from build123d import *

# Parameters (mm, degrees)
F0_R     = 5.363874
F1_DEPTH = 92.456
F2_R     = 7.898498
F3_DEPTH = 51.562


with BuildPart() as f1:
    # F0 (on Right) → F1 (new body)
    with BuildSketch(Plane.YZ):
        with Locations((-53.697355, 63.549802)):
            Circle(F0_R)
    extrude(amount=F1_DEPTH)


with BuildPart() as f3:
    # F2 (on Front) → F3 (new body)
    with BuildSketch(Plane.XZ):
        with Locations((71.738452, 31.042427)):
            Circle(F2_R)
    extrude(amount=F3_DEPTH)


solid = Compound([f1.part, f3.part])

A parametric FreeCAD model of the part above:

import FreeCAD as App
import Part
import Sketcher
from FreeCAD import Vector
Q = App.Units.Quantity

doc = App.newDocument("Part")
params = doc.addObject("Spreadsheet::Sheet", "Params")
for row, (alias, value) in enumerate([
    ("pad1_length", "3.64 in"),
    ("pad2_length", "2.03 in"),
], start=1):
    params.set(f"A{row}", alias)
    params.set(f"B{row}", "=" + value)
    params.setAlias(f"B{row}", alias)

body = doc.addObject("PartDesign::Body", "Body")

# Sketch on YZ plane
sketch1 = doc.addObject("Sketcher::SketchObject", "Sketch")
body.addObject(sketch1)
sketch1.AttachmentSupport = (doc.YZ_Plane, [""])
sketch1.MapMode = "FlatFace"
sketch1.addGeometry(Part.Circle(Vector(-54, 64, 0), Vector(0, 0, 1), 5), False)
sketch1.addConstraint(Sketcher.Constraint("Diameter", 0, Q("10.727748 mm")))
sketch1.addConstraint(Sketcher.Constraint("DistanceX", 0, 3, -1, 1, Q("53.697355 mm")))
sketch1.addConstraint(Sketcher.Constraint("DistanceY", -1, 1, 0, 3, Q("63.549802 mm")))
pad1 = doc.addObject("PartDesign::Pad", "Pad")
body.addObject(pad1)
pad1.Profile = sketch1
pad1.setExpression("Length", "Params.pad1_length")
body2 = doc.addObject("PartDesign::Body", "Body001")

# Sketch on XZ plane
sketch2 = doc.addObject("Sketcher::SketchObject", "Sketch001")
body2.addObject(sketch2)
sketch2.AttachmentSupport = (doc.getObject("XZ_Plane001"), [""])
sketch2.MapMode = "FlatFace"
sketch2.addGeometry(Part.Circle(Vector(72, 31, 0), Vector(0, 0, 1), 8), False)
sketch2.addConstraint(Sketcher.Constraint("Diameter", 0, Q("15.796996 mm")))
sketch2.addConstraint(Sketcher.Constraint("DistanceX", -1, 1, 0, 3, Q("71.738452 mm")))
sketch2.addConstraint(Sketcher.Constraint("DistanceY", -1, 1, 0, 3, Q("31.042427 mm")))
pad2 = doc.addObject("PartDesign::Pad", "Pad001")
body2.addObject(pad2)
pad2.Profile = sketch2
pad2.setExpression("Length", "Params.pad2_length")

doc.recompute()
